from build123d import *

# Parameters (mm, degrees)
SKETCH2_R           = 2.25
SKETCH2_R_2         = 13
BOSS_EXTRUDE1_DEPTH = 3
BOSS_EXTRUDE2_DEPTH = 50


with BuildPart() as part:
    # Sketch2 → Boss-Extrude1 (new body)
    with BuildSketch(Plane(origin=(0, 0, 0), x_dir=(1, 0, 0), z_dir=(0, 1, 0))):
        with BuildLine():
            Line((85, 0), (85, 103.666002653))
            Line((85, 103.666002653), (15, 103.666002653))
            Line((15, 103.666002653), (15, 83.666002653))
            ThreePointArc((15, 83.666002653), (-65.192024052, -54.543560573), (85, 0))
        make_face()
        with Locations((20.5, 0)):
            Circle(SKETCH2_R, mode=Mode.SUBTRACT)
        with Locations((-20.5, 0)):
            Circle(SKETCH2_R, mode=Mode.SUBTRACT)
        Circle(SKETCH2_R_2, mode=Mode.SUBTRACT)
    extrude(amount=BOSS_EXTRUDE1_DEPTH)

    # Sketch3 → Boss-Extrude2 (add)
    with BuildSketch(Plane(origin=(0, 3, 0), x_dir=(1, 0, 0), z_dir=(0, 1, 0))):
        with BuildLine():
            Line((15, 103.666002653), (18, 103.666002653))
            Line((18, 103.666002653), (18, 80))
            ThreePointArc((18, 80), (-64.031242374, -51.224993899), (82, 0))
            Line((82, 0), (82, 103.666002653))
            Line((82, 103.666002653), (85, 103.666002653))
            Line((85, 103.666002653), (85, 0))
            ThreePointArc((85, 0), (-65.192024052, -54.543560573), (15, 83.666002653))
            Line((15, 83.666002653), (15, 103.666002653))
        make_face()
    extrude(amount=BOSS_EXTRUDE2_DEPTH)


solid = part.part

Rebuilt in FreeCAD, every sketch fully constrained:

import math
import FreeCAD as App
import Part
import Sketcher

V = App.Vector

doc = App.newDocument("Part")
params = doc.addObject("Spreadsheet::Sheet", "Params")
for row, (alias, value) in enumerate([
    ("sketch1_diameter", "26 mm"),
    ("sketch1_radius", "85 mm"),
    ("sketch1_diameter2", "4.5 mm"),
    ("sketch1_width", "70 mm"),
    ("sketch1_height", "20 mm"),
    ("pad1_length", "3 mm"),
    ("sketch2_radius", "85 mm"),
    ("sketch2_radius2", "82 mm"),
    ("sketch2_height", "20 mm"),
    ("pad2_length", "50 mm"),
], start=1):
    params.set(f"A{row}", alias)
    params.set(f"B{row}", "=" + value)
    params.setAlias(f"B{row}", alias)

body = doc.addObject("PartDesign::Body", "Body")

# Sketch on XZ plane
sketch1 = body.newObject("Sketcher::SketchObject", "Sketch")
sketch1.AttachmentSupport = (doc.getObject("XZ_Plane"), [""])
sketch1.MapMode = "FlatFace"
sketch1.addGeometry(Part.LineSegment(V(85, 0, 0), V(85, -103.666003, 0)), False)
sketch1.addGeometry(Part.LineSegment(V(85, -103.666003, 0), V(15, -103.666003, 0)), False)
sketch1.addGeometry(Part.LineSegment(V(15, -103.666003, 0), V(15, -83.666003, 0)), False)
sketch1.addGeometry(Part.ArcOfCircle(Part.Circle(V(0, 0, 0), V(0, 0, 1), 85), math.radians(0), math.radians(280.164249)), False)
sketch1.addGeometry(Part.Circle(V(-20.5, 0, 0), V(0, 0, 1), 2.25), False)
sketch1.addGeometry(Part.Circle(V(0, 0, 0), V(0, 0, 1), 13), False)
sketch1.addGeometry(Part.Circle(V(20.5, 0, 0), V(0, 0, 1), 2.25), False)
sketch1.addConstraint(Sketcher.Constraint("Coincident", 0, 2, 1, 1))
sketch1.addConstraint(Sketcher.Constraint("Coincident", 1, 2, 2, 1))
sketch1.addConstraint(Sketcher.Constraint("Coincident", 2, 2, 3, 2))
sketch1.addConstraint(Sketcher.Constraint("Tangent", 3, 1, 0, 1))
sketch1.addConstraint(Sketcher.Constraint("Vertical", 0))
sketch1.addConstraint(Sketcher.Constraint("Horizontal", 1))
sketch1.addConstraint(Sketcher.Constraint("Vertical", 2))
sketch1.addConstraint(Sketcher.Constraint("Coincident", 3, 3, -1, 1))
sketch1.addConstraint(Sketcher.Constraint("Coincident", 5, 3, -1, 1))
sketch1.addConstraint(Sketcher.Constraint("Equal", 4, 6))
sketch1.addConstraint(Sketcher.Constraint("Symmetric", 4, 3, 6, 3, -1, 1))
sketch1.addConstraint(Sketcher.Constraint("PointOnObject", 4, 3, -1))
sketch1.addConstraint(Sketcher.Constraint("Diameter", 5, 26.0))
sketch1.addConstraint(Sketcher.Constraint("Radius", 3, 85.0))
sketch1.addConstraint(Sketcher.Constraint("Diameter", 4, 4.5))
sketch1.addConstraint(Sketcher.Constraint("DistanceX", 1, 2, 1, 1, 70.0))
sketch1.addConstraint(Sketcher.Constraint("DistanceY", 2, 1, 2, 2, 20.0))
sketch1.addConstraint(Sketcher.Constraint("DistanceX", 4, 3, 6, 3, 41.0))
sketch1.setExpression("Constraints[12]", "Params.sketch1_diameter")
sketch1.setExpression("Constraints[13]", "Params.sketch1_radius")
sketch1.setExpression("Constraints[14]", "Params.sketch1_diameter2")
sketch1.setExpression("Constraints[15]", "Params.sketch1_width")
sketch1.setExpression("Constraints[16]", "Params.sketch1_height")
pad1 = body.newObject("PartDesign::Pad", "Pad")
pad1.Profile = sketch1
pad1.setExpression("Length", "Params.pad1_length")
pad1.Reversed = True

# Sketch on XZ plane
sketch2 = body.newObject("Sketcher::SketchObject", "Sketch001")
sketch2.AttachmentSupport = (doc.getObject("XZ_Plane"), [""])
sketch2.MapMode = "FlatFace"
sketch2.AttachmentOffset = App.Placement(V(0, 0, -3), App.Rotation())
sketch2.addGeometry(Part.LineSegment(V(18, -103.666003, 0), V(15, -103.666003, 0)), False)
sketch2.addGeometry(Part.LineSegment(V(15, -103.666003, 0), V(15, -83.666003, 0)), False)
sketch2.addGeometry(Part.ArcOfCircle(Part.Circle(V(0, 0, 0), V(0, 0, 1), 85), math.radians(0), math.radians(280.164249)), False)
sketch2.addGeometry(Part.LineSegment(V(85, 0, 0), V(85, -103.666003, 0)), False)
sketch2.addGeometry(Part.LineSegment(V(85, -103.666003, 0), V(82, -103.666003, 0)), False)
sketch2.addGeometry(Part.LineSegment(V(82, -103.666003, 0), V(82, 0, 0)), False)
sketch2.addGeometry(Part.ArcOfCircle(Part.Circle(V(0, 0, 0), V(0, 0, 1), 82), math.radians(0), math.radians(282.680383)), False)
sketch2.addGeometry(Part.LineSegment(V(18, -80, 0), V(18, -103.666003, 0)), False)
sketch2.addConstraint(Sketcher.Constraint("Coincident", 0, 2, 1, 1))
sketch2.addConstraint(Sketcher.Constraint("Coincident", 1, 2, 2, 2))
sketch2.addConstraint(Sketcher.Constraint("Tangent", 2, 1, 3, 1))
sketch2.addConstraint(Sketcher.Constraint("Coincident", 3, 2, 4, 1))
sketch2.addConstraint(Sketcher.Constraint("Coincident", 4, 2, 5, 1))
sketch2.addConstraint(Sketcher.Constraint("Tangent", 5, 2, 6, 1))
sketch2.addConstraint(Sketcher.Constraint("Coincident", 6, 2, 7, 1))
sketch2.addConstraint(Sketcher.Constraint("Coincident", 7, 2, 0, 1))
sketch2.addConstraint(Sketcher.Constraint("Horizontal", 0))
sketch2.addConstraint(Sketcher.Constraint("Vertical", 1))
sketch2.addConstraint(Sketcher.Constraint("Vertical", 3))
sketch2.addConstraint(Sketcher.Constraint("Horizontal", 4))
sketch2.addConstraint(Sketcher.Constraint("Vertical", 5))
sketch2.addConstraint(Sketcher.Constraint("Vertical", 7))
sketch2.addConstraint(Sketcher.Constraint("Coincident", 2, 3, -1, 1))
sketch2.addConstraint(Sketcher.Constraint("Coincident", 6, 3, -1, 1))
sketch2.addConstraint(Sketcher.Constraint("Horizontal", 0, 2, 3, 2))
sketch2.addConstraint(Sketcher.Constraint("Equal", 0, 4))
sketch2.addConstraint(Sketcher.Constraint("Radius", 2, 85.0))
sketch2.addConstraint(Sketcher.Constraint("Radius", 6, 82.0))
sketch2.addConstraint(Sketcher.Constraint("DistanceY", 1, 1, 1, 2, 20.0))
sketch2.addConstraint(Sketcher.Constraint("DistanceX", -1, 1, 0, 2, 15.0))
sketch2.setExpression("Constraints[18]", "Params.sketch2_radius")
sketch2.setExpression("Constraints[19]", "Params.sketch2_radius2")
sketch2.setExpression("Constraints[20]", "Params.sketch2_height")
pad2 = body.newObject("PartDesign::Pad", "Pad001")
pad2.Profile = sketch2
pad2.setExpression("Length", "Params.pad2_length")
pad2.Reversed = True

doc.recompute()
